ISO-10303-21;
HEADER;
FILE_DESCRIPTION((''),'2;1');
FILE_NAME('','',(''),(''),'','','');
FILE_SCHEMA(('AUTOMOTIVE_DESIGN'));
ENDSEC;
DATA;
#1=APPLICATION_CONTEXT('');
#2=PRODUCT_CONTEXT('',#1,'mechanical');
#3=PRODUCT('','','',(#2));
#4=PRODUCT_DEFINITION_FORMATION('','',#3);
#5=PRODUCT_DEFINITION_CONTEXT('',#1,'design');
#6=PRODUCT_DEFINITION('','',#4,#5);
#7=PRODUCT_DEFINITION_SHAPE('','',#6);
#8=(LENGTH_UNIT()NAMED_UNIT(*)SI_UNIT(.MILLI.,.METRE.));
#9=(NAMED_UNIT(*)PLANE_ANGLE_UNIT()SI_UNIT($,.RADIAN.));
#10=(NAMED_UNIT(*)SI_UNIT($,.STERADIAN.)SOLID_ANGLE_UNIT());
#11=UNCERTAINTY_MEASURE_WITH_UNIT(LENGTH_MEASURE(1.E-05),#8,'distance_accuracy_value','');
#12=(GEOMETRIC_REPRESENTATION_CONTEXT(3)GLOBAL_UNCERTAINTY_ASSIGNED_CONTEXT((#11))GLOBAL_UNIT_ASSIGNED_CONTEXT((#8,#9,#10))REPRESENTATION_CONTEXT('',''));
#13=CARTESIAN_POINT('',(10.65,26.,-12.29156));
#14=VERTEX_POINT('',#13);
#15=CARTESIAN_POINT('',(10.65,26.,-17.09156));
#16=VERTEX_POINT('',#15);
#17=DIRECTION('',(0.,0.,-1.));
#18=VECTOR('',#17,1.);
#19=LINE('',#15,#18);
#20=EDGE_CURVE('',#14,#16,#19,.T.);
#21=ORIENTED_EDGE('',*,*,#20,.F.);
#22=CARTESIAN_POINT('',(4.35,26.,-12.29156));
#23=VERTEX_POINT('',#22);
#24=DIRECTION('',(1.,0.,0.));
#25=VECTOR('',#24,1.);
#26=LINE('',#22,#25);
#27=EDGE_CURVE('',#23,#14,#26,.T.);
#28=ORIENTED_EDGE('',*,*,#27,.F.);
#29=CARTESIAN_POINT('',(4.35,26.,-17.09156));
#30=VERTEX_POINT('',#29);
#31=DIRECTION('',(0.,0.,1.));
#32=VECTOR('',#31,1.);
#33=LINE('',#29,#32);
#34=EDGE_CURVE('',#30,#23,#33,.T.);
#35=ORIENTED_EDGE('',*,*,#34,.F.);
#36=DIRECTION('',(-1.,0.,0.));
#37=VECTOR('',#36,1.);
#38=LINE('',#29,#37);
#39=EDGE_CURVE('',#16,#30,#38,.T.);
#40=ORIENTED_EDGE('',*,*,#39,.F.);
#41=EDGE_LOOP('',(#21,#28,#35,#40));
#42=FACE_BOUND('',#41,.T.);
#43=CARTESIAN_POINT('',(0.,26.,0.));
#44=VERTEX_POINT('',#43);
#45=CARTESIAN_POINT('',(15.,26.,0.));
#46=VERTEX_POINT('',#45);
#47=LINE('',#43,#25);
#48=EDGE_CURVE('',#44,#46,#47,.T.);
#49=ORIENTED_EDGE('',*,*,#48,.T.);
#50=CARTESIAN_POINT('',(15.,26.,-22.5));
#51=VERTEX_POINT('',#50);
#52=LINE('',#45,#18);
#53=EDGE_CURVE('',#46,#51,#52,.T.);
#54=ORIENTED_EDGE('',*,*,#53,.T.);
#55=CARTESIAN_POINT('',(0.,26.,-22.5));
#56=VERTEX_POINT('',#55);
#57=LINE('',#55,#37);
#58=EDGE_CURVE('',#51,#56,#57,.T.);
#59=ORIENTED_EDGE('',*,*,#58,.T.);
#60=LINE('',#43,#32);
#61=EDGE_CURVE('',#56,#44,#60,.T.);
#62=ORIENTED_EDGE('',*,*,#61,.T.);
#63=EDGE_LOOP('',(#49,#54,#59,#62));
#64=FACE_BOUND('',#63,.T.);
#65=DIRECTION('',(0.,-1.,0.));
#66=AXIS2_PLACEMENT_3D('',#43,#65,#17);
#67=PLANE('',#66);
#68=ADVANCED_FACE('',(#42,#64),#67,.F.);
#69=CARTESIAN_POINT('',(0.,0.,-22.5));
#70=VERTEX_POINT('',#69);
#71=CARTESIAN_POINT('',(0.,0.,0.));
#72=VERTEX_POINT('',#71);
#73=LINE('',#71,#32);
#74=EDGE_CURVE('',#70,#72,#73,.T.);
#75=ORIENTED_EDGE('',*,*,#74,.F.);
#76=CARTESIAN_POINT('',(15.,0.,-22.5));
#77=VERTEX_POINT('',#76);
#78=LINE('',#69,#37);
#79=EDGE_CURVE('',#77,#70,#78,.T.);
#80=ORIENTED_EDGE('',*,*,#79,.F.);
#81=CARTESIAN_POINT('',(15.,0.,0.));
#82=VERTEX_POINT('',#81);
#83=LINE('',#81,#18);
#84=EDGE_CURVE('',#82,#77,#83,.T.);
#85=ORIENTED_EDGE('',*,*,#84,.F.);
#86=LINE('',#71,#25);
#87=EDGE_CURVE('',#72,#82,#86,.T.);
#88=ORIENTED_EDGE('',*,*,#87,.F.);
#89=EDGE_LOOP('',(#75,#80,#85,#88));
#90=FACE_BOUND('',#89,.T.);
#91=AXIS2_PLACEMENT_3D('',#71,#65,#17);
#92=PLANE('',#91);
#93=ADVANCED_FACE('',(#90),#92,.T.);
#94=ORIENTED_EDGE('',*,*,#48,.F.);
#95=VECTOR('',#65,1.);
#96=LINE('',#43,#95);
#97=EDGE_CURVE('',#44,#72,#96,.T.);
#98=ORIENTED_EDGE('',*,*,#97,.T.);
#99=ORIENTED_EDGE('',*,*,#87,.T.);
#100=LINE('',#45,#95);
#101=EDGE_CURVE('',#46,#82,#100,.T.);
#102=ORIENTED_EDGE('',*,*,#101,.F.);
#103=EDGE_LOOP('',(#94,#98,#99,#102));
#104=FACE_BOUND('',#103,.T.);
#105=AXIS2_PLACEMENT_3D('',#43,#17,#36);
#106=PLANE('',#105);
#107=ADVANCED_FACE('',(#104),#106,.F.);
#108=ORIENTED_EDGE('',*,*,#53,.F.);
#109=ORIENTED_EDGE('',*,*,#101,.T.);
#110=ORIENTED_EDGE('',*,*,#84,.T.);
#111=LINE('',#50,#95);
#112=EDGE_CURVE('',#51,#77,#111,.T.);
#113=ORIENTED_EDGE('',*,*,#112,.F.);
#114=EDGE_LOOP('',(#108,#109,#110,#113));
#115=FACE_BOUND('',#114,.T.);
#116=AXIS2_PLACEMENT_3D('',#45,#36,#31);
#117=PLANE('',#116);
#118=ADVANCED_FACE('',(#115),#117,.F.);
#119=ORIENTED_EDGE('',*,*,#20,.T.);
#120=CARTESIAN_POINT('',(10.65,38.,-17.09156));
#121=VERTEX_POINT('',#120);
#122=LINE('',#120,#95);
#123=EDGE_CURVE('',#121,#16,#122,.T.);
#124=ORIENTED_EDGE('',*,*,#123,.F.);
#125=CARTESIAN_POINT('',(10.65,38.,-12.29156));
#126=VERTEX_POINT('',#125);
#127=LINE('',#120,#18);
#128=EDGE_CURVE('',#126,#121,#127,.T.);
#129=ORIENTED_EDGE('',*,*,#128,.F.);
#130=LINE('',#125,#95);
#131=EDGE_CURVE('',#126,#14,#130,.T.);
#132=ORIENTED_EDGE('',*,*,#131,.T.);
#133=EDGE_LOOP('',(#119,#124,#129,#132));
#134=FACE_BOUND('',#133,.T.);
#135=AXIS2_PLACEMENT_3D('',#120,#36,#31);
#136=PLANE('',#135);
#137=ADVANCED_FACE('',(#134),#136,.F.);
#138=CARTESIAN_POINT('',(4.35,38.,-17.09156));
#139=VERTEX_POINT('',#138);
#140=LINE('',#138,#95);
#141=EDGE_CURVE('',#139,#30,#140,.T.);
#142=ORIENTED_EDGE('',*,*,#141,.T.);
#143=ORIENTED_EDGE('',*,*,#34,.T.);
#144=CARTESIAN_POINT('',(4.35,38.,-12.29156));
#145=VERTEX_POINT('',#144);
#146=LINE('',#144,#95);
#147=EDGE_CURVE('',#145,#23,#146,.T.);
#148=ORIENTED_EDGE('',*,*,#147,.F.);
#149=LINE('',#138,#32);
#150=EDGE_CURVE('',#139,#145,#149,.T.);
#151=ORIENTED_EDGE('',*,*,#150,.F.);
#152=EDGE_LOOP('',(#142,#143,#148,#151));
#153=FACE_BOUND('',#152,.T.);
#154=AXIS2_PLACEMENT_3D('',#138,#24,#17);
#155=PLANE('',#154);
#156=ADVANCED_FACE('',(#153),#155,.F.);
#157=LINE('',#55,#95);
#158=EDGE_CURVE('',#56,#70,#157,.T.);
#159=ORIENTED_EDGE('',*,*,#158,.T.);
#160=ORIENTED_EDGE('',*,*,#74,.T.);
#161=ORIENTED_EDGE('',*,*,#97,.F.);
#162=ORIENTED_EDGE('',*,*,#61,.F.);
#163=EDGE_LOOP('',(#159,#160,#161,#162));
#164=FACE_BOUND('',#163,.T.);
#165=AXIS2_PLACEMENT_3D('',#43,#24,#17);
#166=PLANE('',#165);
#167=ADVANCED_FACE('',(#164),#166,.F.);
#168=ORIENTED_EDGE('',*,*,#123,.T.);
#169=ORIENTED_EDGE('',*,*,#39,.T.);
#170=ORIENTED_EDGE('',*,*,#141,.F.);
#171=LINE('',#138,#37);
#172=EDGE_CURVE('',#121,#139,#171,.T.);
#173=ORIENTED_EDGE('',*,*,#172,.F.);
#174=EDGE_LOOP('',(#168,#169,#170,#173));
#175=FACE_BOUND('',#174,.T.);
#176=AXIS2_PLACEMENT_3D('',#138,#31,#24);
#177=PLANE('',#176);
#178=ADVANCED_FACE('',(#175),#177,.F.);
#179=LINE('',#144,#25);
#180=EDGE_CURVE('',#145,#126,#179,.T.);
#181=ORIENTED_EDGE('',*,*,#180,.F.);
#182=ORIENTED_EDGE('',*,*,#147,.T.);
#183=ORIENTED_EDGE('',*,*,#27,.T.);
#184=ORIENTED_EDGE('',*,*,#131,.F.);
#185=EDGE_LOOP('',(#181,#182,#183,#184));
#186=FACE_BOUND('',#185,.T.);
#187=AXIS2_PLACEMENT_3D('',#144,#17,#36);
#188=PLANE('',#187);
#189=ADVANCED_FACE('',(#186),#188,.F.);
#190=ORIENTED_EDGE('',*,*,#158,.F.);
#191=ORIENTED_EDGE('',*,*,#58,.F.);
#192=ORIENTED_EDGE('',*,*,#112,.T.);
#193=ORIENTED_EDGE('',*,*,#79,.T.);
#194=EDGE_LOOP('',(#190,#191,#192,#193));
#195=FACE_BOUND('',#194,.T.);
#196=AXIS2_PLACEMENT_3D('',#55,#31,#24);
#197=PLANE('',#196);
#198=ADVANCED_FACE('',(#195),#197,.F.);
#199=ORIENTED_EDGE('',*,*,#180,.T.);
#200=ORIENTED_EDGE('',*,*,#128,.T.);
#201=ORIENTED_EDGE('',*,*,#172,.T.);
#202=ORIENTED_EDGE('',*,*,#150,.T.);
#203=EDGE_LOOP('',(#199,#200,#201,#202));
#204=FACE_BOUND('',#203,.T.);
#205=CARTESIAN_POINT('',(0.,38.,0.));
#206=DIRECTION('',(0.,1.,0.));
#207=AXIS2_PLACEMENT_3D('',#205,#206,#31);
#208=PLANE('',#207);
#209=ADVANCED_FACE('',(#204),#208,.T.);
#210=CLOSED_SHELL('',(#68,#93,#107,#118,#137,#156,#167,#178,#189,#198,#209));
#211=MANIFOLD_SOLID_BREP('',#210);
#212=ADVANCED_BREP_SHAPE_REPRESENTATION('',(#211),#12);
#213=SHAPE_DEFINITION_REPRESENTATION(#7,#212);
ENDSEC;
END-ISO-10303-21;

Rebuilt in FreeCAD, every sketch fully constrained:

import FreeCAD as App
import Part
import Sketcher
Q = App.Units.Quantity


def add_polygon(sketch, points):
    """Adds a closed chain of lines whose ends are joined by coincident constraints."""
    first, n = sketch.GeometryCount, len(points)
    for a, b in zip(points, points[1:] + points[:1]):
        sketch.addGeometry(Part.LineSegment(App.Vector(*a, 0), App.Vector(*b, 0)), False)
    for i in range(n):
        sketch.addConstraint(Sketcher.Constraint("Coincident", first + i, 2, first + (i + 1) % n, 1))

doc = App.newDocument("Part")
body = doc.addObject("PartDesign::Body", "Body")

# Sketch on XZ plane
sketch1 = body.newObject("Sketcher::SketchObject", "Sketch")
sketch1.AttachmentSupport = (doc.getObject("XZ_Plane"), [""])
sketch1.MapMode = "FlatFace"
add_polygon(sketch1, [(0, -22.5), (0, 0), (15, 0), (15, -22.5)])  # lines 0-3
sketch1.addConstraint(Sketcher.Constraint("Vertical", 0))
sketch1.addConstraint(Sketcher.Constraint("Horizontal", 1))
sketch1.addConstraint(Sketcher.Constraint("Vertical", 2))
sketch1.addConstraint(Sketcher.Constraint("Horizontal", 3))
sketch1.addConstraint(Sketcher.Constraint("Coincident", 0, 2, -1, 1))
sketch1.addConstraint(Sketcher.Constraint("DistanceX", 1, 1, 1, 2, Q("15 mm")))
sketch1.addConstraint(Sketcher.Constraint("DistanceY", 0, 1, 0, 2, Q("22.5 mm")))
pad1 = body.newObject("PartDesign::Pad", "Pad")
pad1.Profile = sketch1
pad1.Length = 26
pad1.Reversed = True

# Sketch on XZ plane
sketch2 = body.newObject("Sketcher::SketchObject", "Sketch001")
sketch2.AttachmentSupport = (doc.getObject("XZ_Plane"), [""])
sketch2.MapMode = "FlatFace"
sketch2.AttachmentOffset = App.Placement(App.Vector(0, 0, -26), App.Rotation())
add_polygon(sketch2, [(4.35, -17.09156), (4.35, -12.29156), (10.65, -12.29156), (10.65, -17.09156)])  # lines 0-3
sketch2.addConstraint(Sketcher.Constraint("Vertical", 0))
sketch2.addConstraint(Sketcher.Constraint("Horizontal", 1))
sketch2.addConstraint(Sketcher.Constraint("Vertical", 2))
sketch2.addConstraint(Sketcher.Constraint("Horizontal", 3))
sketch2.addConstraint(Sketcher.Constraint("DistanceX", 1, 1, 1, 2, Q("6.3 mm")))
sketch2.addConstraint(Sketcher.Constraint("DistanceY", 0, 1, 0, 2, Q("4.8 mm")))
sketch2.addConstraint(Sketcher.Constraint("DistanceX", -1, 1, 0, 2, Q("4.35 mm")))
sketch2.addConstraint(Sketcher.Constraint("DistanceY", 0, 2, -1, 1, Q("12.29156 mm")))
pad2 = body.newObject("PartDesign::Pad", "Pad001")
pad2.Profile = sketch2
pad2.Length = 12
pad2.Reversed = True

doc.recompute()
